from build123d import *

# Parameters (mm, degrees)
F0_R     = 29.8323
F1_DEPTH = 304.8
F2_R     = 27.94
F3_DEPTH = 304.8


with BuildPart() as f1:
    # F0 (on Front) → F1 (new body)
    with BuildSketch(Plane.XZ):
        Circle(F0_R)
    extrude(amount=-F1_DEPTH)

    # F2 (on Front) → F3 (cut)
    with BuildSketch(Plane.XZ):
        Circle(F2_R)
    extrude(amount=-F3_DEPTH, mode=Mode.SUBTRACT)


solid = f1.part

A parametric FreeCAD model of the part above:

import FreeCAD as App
import Part
import Sketcher
from FreeCAD import Vector
Q = App.Units.Quantity

doc = App.newDocument("Part")
body = doc.addObject("PartDesign::Body", "Body")

# Sketch on XZ plane
sketch1 = body.newObject("Sketcher::SketchObject", "Sketch")
sketch1.AttachmentSupport = (doc.getObject("XZ_Plane"), [""])
sketch1.MapMode = "FlatFace"
sketch1.addGeometry(Part.Circle(Vector(0, 0, 0), Vector(0, 0, 1), 29.8323), False)
sketch1.addConstraint([
    Sketcher.Constraint("Coincident", 0, 3, -1, 1),
    Sketcher.Constraint("Diameter", 0, Q("2.349 in")),
])
pad1 = body.newObject("PartDesign::Pad", "Pad")
pad1.Profile = sketch1
pad1.Length = Q("12 in")
pad1.Reversed = True

# Sketch on XZ plane
sketch2 = body.newObject("Sketcher::SketchObject", "Sketch001")
sketch2.AttachmentSupport = (doc.getObject("XZ_Plane"), [""])
sketch2.MapMode = "FlatFace"
sketch2.addGeometry(Part.Circle(Vector(0, 0, 0), Vector(0, 0, 1), 27.94), False)
sketch2.addConstraint([
    Sketcher.Constraint("Coincident", 0, 3, -1, 1),
    Sketcher.Constraint("Diameter", 0, Q("2.2 in")),
])
pocket1 = body.newObject("PartDesign::Pocket", "Pocket")
pocket1.Profile = sketch2
pocket1.Length = Q("12 in")

doc.recompute()
